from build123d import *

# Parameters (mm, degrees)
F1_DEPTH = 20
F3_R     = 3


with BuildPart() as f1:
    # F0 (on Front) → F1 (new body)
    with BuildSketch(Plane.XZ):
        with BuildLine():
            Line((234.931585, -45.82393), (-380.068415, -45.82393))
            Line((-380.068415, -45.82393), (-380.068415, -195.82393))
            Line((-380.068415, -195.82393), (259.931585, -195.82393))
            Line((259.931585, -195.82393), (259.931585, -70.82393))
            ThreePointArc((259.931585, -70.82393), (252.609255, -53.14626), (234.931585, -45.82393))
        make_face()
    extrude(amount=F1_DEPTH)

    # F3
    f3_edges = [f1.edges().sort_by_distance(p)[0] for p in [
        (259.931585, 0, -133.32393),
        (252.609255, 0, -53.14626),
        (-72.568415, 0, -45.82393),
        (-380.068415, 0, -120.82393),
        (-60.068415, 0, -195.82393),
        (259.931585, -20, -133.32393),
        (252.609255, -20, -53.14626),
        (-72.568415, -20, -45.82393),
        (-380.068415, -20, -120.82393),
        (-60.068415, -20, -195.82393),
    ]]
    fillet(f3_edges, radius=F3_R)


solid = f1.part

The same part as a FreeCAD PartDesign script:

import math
import FreeCAD as App
import Part
import Sketcher

V = App.Vector


def edges_at(feature, points):
    """Names of the edges that pass closest to the given points."""
    edges = feature.Shape.Edges
    near = lambda p: min(range(len(edges)), key=lambda i: edges[i].distToShape(Part.Vertex(*p))[0])
    return sorted({f"Edge{near(p) + 1}" for p in points})

doc = App.newDocument("Part")
params = doc.addObject("Spreadsheet::Sheet", "Params")
for row, (alias, value) in enumerate([
    ("sketch1_radius", "24.999998 mm"),
    ("sketch1_width", "615 mm"),
    ("sketch1_height", "150 mm"),
    ("pad1_length", "20 mm"),
    ("fillet_radius", "3 mm"),
], start=1):
    params.set(f"A{row}", alias)
    params.set(f"B{row}", "=" + value)
    params.setAlias(f"B{row}", alias)

body = doc.addObject("PartDesign::Body", "Body")

sketch1 = doc.addObject("Sketcher::SketchObject", "Sketch")
body.addObject(sketch1)
sketch1.AttachmentSupport = (doc.XZ_Plane, [""])
sketch1.MapMode = "FlatFace"
sketch1.addGeometry(Part.LineSegment(V(234.931585, -45.82393, 0), V(-380.068415, -45.82393, 0)), False)
sketch1.addGeometry(Part.LineSegment(V(-380.068415, -45.82393, 0), V(-380.068415, -195.82393, 0)), False)
sketch1.addGeometry(Part.LineSegment(V(-380.068415, -195.82393, 0), V(259.931585, -195.82393, 0)), False)
sketch1.addGeometry(Part.LineSegment(V(259.931585, -195.82393, 0), V(259.931585, -70.82393, 0)), False)
sketch1.addGeometry(Part.ArcOfCircle(Part.Circle(V(234.931587, -70.823928, 0), V(0, 0, 1), 24.999998), math.radians(-0.000004), math.radians(90.000004)), False)
sketch1.addConstraint(Sketcher.Constraint("Coincident", 0, 2, 1, 1))
sketch1.addConstraint(Sketcher.Constraint("Coincident", 1, 2, 2, 1))
sketch1.addConstraint(Sketcher.Constraint("Coincident", 2, 2, 3, 1))
sketch1.addConstraint(Sketcher.Constraint("Tangent", 3, 2, 4, 1))
sketch1.addConstraint(Sketcher.Constraint("Tangent", 4, 2, 0, 1))
sketch1.addConstraint(Sketcher.Constraint("Horizontal", 0))
sketch1.addConstraint(Sketcher.Constraint("Vertical", 1))
sketch1.addConstraint(Sketcher.Constraint("Horizontal", 2))
sketch1.addConstraint(Sketcher.Constraint("Vertical", 3))
sketch1.addConstraint(Sketcher.Constraint("Radius", 4, 24.999998))
sketch1.addConstraint(Sketcher.Constraint("DistanceX", 0, 2, 0, 1, 615.0))
sketch1.addConstraint(Sketcher.Constraint("DistanceY", 1, 2, 1, 1, 150.0))
sketch1.addConstraint(Sketcher.Constraint("DistanceY", 4, 3, -1, 1, 70.823928))
sketch1.addConstraint(Sketcher.Constraint("DistanceX", -1, 1, 4, 3, 234.931587))
sketch1.setExpression("Constraints[9]", "Params.sketch1_radius")
sketch1.setExpression("Constraints[10]", "Params.sketch1_width")
sketch1.setExpression("Constraints[11]", "Params.sketch1_height")
pad1 = doc.addObject("PartDesign::Pad", "Pad")
body.addObject(pad1)
pad1.Profile = sketch1
pad1.setExpression("Length", "Params.pad1_length")
doc.recompute()

fillet = doc.addObject("PartDesign::Fillet", "Fillet")
body.addObject(fillet)
fillet.Base = (pad1, edges_at(pad1, [
    (259.932, 0, -133.324),
    (252.609, 0, -53.146),
    (-72.568, 0, -45.824),
    (-380.068, 0, -120.824),
    (-60.068, 0, -195.824),
    (259.932, -20, -133.324),
    (252.609, -20, -53.146),
    (-72.568, -20, -45.824),
    (-380.068, -20, -120.824),
    (-60.068, -20, -195.824),
]))
fillet.setExpression("Radius", "Params.fillet_radius")

doc.recompute()
